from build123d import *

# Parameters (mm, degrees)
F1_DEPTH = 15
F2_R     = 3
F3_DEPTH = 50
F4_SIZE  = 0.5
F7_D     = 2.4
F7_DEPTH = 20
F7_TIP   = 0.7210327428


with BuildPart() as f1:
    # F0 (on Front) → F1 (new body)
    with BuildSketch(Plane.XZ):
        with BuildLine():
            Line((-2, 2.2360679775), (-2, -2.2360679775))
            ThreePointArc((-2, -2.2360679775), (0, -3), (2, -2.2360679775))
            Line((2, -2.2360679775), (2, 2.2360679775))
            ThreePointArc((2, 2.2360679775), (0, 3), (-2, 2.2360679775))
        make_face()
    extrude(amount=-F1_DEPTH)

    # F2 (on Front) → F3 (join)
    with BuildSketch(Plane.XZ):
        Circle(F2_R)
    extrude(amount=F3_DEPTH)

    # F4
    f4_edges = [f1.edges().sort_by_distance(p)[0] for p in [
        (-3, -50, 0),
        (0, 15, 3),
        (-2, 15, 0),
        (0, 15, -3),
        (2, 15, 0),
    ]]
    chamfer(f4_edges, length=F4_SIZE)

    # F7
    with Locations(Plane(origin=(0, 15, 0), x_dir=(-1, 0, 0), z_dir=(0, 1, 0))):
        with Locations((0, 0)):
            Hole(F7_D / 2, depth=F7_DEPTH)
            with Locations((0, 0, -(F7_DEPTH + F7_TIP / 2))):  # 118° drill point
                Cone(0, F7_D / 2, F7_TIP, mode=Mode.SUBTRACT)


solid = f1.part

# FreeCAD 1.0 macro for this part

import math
import FreeCAD as App
import Part
import Sketcher


def edges_at(feature, points):
    """Names of the edges that pass closest to the given points."""
    edges = feature.Shape.Edges
    near = lambda p: min(range(len(edges)), key=lambda i: edges[i].distToShape(Part.Vertex(*p))[0])
    return sorted({f"Edge{near(p) + 1}" for p in points})

doc = App.newDocument("Part")
body = doc.addObject("PartDesign::Body", "Body")

sketch1 = body.newObject("Sketcher::SketchObject", "Sketch")
sketch1.AttachmentSupport = (doc.getObject("XZ_Plane"), [""])
sketch1.MapMode = "FlatFace"
sketch1.addGeometry([
    Part.LineSegment(App.Vector(-2, 2.236068, 0), App.Vector(-2, -2.236068, 0)),
    Part.ArcOfCircle(Part.Circle(App.Vector(0, 0, 0), App.Vector(0, 0, 1), 3), math.radians(-131.810315), math.radians(-48.189685)),
    Part.LineSegment(App.Vector(2, -2.236068, 0), App.Vector(2, 2.236068, 0)),
    Part.ArcOfCircle(Part.Circle(App.Vector(0, 0, 0), App.Vector(0, 0, 1), 3), math.radians(48.189685), math.radians(131.810315)),
], False)
sketch1.addConstraint([
    Sketcher.Constraint("Coincident", 0, 2, 1, 1),
    Sketcher.Constraint("Coincident", 1, 2, 2, 1),
    Sketcher.Constraint("Coincident", 2, 2, 3, 1),
    Sketcher.Constraint("Coincident", 3, 2, 0, 1),
    Sketcher.Constraint("Vertical", 0),
    Sketcher.Constraint("Vertical", 2),
    Sketcher.Constraint("Coincident", 1, 3, -1, 1),
    Sketcher.Constraint("Coincident", 3, 3, -1, 1),
    Sketcher.Constraint("Equal", 1, 3),
    Sketcher.Constraint("Horizontal", 0, 2, 1, 2),
    Sketcher.Constraint("Radius", 1, 3.0),
    Sketcher.Constraint("DistanceX", 0, 2, -1, 1, 2.0),
])
pad1 = body.newObject("PartDesign::Pad", "Pad")
pad1.Profile = sketch1
pad1.Length = 15
pad1.Reversed = True

sketch2 = body.newObject("Sketcher::SketchObject", "Sketch001")
sketch2.AttachmentSupport = (doc.getObject("XZ_Plane"), [""])
sketch2.MapMode = "FlatFace"
sketch2.addGeometry(Part.Circle(App.Vector(0, 0, 0), App.Vector(0, 0, 1), 3), False)
sketch2.addConstraint([
    Sketcher.Constraint("Coincident", 0, 3, -1, 1),
    Sketcher.Constraint("Diameter", 0, 6.0),
])
pad2 = body.newObject("PartDesign::Pad", "Pad001")
pad2.Profile = sketch2
pad2.Length = 50
doc.recompute()

chamfer = body.newObject("PartDesign::Chamfer", "Chamfer")
chamfer.Base = (pad2, edges_at(pad2, [
    (-3, -50, 0),
    (0, 15, 3),
    (-2, 15, 0),
    (0, 15, -3),
    (2, 15, 0),
]))
chamfer.Size = 0.5

sketch3 = body.newObject("Sketcher::SketchObject", "Sketch002")
sketch3.AttachmentSupport = (doc.getObject("XZ_Plane"), [""])
sketch3.MapMode = "FlatFace"
sketch3.AttachmentOffset = App.Placement(App.Vector(0, 0, -15), App.Rotation())
sketch3.addGeometry(Part.Circle(App.Vector(0, 0, 0), App.Vector(0, 0, 1), 1.2), False)
sketch3.addConstraint([
    Sketcher.Constraint("Coincident", 0, 3, -1, 1),
    Sketcher.Constraint("Diameter", 0, 2.4),
])
doc.recompute()
hole = body.newObject("PartDesign::Hole", "Hole")
hole.Profile = sketch3
hole.ThreadType = "None"
hole.Diameter = 2.4
hole.DepthType = "Dimension"
hole.Depth = 20
hole.DrillPoint = "Angled"
hole.DrillPointAngle = 118
hole.Reversed = True

doc.recompute()
